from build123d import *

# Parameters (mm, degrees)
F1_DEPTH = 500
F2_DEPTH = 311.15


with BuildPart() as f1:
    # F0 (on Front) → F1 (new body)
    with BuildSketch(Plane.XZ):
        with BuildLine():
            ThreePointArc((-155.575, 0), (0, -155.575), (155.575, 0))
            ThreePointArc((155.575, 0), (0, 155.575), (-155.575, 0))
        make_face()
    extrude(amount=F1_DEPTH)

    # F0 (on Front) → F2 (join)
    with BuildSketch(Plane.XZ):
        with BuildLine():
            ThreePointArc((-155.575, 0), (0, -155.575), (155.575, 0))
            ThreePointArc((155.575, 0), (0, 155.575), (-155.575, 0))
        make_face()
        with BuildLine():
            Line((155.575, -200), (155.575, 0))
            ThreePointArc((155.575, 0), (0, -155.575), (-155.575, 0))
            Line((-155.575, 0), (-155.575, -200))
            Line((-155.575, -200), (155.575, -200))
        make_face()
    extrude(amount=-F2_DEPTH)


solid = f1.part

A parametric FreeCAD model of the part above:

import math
import FreeCAD as App
import Part
import Sketcher
from FreeCAD import Vector

doc = App.newDocument("Part")
params = doc.addObject("Spreadsheet::Sheet", "Params")
for row, (alias, value) in enumerate([
    ("sketch1_diameter", "311.15 mm"),
    ("pad1_length", "500 mm"),
    ("sketch2_height", "200 mm"),
    ("pad2_length", "311.15 mm"),
], start=1):
    params.set(f"A{row}", alias)
    params.set(f"B{row}", "=" + value)
    params.setAlias(f"B{row}", alias)

body = doc.addObject("PartDesign::Body", "Body")

sketch1 = body.newObject("Sketcher::SketchObject", "Sketch")
sketch1.AttachmentSupport = (doc.getObject("XZ_Plane"), [""])
sketch1.MapMode = "FlatFace"
sketch1.addGeometry(Part.Circle(Vector(0, 0, 0), Vector(0, 0, 1), 156), False)
sketch1.addConstraint(Sketcher.Constraint("Coincident", 0, 3, -1, 1))
sketch1.addConstraint(Sketcher.Constraint("Diameter", 0, 311.15))
sketch1.setExpression("Constraints[1]", "Params.sketch1_diameter")
pad1 = body.newObject("PartDesign::Pad", "Pad")
pad1.Profile = sketch1
pad1.setExpression("Length", "Params.pad1_length")

sketch2 = body.newObject("Sketcher::SketchObject", "Sketch001")
sketch2.AttachmentSupport = (doc.getObject("XZ_Plane"), [""])
sketch2.MapMode = "FlatFace"
sketch2.addGeometry(Part.ArcOfCircle(Part.Circle(Vector(0, 0, 0), Vector(0, 0, 1), 156), math.radians(0), math.radians(180)), False)
sketch2.addGeometry(Part.LineSegment(Vector(-156, 0, 0), Vector(-156, -200, 0)), False)
sketch2.addGeometry(Part.LineSegment(Vector(-156, -200, 0), Vector(156, -200, 0)), False)
sketch2.addGeometry(Part.LineSegment(Vector(156, -200, 0), Vector(156, 0, 0)), False)
sketch2.addConstraint(Sketcher.Constraint("Tangent", 0, 2, 1, 1))
sketch2.addConstraint(Sketcher.Constraint("Coincident", 1, 2, 2, 1))
sketch2.addConstraint(Sketcher.Constraint("Coincident", 2, 2, 3, 1))
sketch2.addConstraint(Sketcher.Constraint("Tangent", 3, 2, 0, 1))
sketch2.addConstraint(Sketcher.Constraint("Vertical", 1))
sketch2.addConstraint(Sketcher.Constraint("Horizontal", 2))
sketch2.addConstraint(Sketcher.Constraint("Vertical", 3))
sketch2.addConstraint(Sketcher.Constraint("Coincident", 0, 3, -1, 1))
sketch2.addConstraint(Sketcher.Constraint("DistanceY", 1, 2, 1, 1, 200.0))
sketch2.addConstraint(Sketcher.Constraint("Radius", 0, 155.575))
sketch2.setExpression("Constraints[8]", "Params.sketch2_height")
pad2 = body.newObject("PartDesign::Pad", "Pad001")
pad2.Profile = sketch2
pad2.setExpression("Length", "Params.pad2_length")
pad2.Reversed = True

doc.recompute()
